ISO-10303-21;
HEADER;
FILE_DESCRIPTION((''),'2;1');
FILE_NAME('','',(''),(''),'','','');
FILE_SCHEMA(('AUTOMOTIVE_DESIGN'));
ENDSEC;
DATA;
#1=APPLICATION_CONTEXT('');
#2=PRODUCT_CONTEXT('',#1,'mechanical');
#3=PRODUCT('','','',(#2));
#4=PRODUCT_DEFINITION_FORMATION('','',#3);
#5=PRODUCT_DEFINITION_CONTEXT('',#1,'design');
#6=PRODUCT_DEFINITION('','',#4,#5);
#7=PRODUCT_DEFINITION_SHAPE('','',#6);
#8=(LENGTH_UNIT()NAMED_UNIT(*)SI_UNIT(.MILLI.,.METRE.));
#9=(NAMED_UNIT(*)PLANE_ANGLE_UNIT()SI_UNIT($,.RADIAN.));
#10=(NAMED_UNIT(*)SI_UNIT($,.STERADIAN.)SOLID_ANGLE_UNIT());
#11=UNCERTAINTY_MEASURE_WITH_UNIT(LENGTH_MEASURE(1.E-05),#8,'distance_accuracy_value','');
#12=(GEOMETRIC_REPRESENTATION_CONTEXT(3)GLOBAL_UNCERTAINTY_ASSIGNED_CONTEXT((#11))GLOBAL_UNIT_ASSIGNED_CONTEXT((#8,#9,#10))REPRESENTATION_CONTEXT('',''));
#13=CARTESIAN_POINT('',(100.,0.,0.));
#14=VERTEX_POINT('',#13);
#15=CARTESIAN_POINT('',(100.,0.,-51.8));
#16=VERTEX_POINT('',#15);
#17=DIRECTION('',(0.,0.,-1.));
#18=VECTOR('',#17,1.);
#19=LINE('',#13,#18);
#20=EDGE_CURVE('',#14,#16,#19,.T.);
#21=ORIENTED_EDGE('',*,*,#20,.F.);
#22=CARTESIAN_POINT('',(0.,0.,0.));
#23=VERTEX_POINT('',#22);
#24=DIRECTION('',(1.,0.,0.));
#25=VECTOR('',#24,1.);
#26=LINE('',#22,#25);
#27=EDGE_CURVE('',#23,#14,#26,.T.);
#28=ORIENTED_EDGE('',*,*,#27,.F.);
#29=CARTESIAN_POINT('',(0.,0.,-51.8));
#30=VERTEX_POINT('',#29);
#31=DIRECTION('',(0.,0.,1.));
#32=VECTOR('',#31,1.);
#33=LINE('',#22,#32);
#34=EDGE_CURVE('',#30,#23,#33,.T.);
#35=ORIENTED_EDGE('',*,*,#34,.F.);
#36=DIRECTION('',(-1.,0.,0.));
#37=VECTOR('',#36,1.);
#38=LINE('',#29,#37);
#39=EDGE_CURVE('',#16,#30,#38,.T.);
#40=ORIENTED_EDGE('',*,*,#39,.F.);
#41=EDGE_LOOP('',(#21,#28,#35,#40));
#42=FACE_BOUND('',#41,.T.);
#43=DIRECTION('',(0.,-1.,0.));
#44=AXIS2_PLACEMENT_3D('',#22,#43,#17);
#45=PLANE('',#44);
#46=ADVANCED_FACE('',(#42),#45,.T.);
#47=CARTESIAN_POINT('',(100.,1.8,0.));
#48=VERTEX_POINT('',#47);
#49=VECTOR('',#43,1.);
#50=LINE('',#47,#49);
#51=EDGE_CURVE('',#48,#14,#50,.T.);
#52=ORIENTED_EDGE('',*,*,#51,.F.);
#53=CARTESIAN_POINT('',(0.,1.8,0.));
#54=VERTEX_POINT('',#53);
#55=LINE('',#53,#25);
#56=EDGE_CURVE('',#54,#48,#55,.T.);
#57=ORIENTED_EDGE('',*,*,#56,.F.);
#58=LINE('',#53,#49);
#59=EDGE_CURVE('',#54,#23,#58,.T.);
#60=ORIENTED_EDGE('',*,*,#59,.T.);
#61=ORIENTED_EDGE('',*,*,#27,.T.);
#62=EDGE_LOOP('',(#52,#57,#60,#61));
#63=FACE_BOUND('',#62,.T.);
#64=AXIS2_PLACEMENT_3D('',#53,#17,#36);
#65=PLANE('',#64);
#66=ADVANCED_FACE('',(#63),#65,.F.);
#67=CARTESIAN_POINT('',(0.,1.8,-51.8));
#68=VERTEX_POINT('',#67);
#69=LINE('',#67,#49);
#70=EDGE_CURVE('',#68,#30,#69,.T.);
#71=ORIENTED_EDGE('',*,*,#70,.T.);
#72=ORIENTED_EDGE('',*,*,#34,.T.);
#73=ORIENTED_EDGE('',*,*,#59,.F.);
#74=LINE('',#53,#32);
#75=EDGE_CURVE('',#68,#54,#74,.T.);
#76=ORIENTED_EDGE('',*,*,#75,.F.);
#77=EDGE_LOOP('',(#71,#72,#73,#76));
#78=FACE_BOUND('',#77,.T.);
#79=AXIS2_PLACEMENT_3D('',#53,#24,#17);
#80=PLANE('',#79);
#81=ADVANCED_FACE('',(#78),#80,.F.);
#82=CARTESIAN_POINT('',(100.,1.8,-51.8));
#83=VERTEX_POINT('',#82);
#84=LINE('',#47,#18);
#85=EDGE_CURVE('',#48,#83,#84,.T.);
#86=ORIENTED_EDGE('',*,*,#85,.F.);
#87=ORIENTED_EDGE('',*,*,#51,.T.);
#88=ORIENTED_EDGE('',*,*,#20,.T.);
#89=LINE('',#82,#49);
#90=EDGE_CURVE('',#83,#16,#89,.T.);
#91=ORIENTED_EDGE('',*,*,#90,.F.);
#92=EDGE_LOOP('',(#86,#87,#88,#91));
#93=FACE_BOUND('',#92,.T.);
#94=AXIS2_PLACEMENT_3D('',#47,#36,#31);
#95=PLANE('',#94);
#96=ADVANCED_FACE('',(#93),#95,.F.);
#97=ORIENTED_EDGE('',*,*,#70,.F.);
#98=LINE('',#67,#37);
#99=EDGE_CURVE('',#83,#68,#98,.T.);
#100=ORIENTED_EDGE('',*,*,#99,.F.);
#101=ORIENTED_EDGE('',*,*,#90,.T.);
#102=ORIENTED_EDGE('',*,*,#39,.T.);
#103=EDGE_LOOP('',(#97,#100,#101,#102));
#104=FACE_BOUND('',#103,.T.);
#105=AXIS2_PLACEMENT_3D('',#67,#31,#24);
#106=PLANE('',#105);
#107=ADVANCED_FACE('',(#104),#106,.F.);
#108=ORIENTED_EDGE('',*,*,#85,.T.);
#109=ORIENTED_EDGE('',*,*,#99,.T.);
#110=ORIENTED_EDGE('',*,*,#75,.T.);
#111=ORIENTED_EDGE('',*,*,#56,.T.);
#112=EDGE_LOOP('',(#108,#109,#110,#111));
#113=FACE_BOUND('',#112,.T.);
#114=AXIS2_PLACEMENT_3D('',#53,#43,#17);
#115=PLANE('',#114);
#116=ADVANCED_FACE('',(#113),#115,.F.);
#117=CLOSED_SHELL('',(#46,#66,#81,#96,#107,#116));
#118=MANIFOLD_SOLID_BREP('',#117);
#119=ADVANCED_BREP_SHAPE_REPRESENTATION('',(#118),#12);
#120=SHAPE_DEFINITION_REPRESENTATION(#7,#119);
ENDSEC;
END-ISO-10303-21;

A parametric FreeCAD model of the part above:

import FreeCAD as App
import Part
import Sketcher

doc = App.newDocument("Part")
body = doc.addObject("PartDesign::Body", "Body")

# Sketch on XZ plane
sketch1 = body.newObject("Sketcher::SketchObject", "Sketch")
sketch1.AttachmentSupport = (doc.getObject("XZ_Plane"), [""])
sketch1.MapMode = "FlatFace"
sketch1.addGeometry([
    Part.LineSegment(App.Vector(0, -52, 0), App.Vector(0, 0, 0)),
    Part.LineSegment(App.Vector(0, 0, 0), App.Vector(100, 0, 0)),
    Part.LineSegment(App.Vector(100, 0, 0), App.Vector(100, -52, 0)),
    Part.LineSegment(App.Vector(100, -52, 0), App.Vector(0, -52, 0)),
], False)
sketch1.addConstraint([
    Sketcher.Constraint("Coincident", 0, 2, 1, 1),
    Sketcher.Constraint("Coincident", 1, 2, 2, 1),
    Sketcher.Constraint("Coincident", 2, 2, 3, 1),
    Sketcher.Constraint("Coincident", 3, 2, 0, 1),
    Sketcher.Constraint("Vertical", 0),
    Sketcher.Constraint("Horizontal", 1),
    Sketcher.Constraint("Vertical", 2),
    Sketcher.Constraint("Horizontal", 3),
    Sketcher.Constraint("Coincident", 0, 2, -1, 1),
    Sketcher.Constraint("DistanceX", 1, 1, 1, 2, 100.0),
    Sketcher.Constraint("DistanceY", 0, 1, 0, 2, 51.8),
])
pad1 = body.newObject("PartDesign::Pad", "Pad")
pad1.Profile = sketch1
pad1.Length = 1.8
pad1.Reversed = True

doc.recompute()
